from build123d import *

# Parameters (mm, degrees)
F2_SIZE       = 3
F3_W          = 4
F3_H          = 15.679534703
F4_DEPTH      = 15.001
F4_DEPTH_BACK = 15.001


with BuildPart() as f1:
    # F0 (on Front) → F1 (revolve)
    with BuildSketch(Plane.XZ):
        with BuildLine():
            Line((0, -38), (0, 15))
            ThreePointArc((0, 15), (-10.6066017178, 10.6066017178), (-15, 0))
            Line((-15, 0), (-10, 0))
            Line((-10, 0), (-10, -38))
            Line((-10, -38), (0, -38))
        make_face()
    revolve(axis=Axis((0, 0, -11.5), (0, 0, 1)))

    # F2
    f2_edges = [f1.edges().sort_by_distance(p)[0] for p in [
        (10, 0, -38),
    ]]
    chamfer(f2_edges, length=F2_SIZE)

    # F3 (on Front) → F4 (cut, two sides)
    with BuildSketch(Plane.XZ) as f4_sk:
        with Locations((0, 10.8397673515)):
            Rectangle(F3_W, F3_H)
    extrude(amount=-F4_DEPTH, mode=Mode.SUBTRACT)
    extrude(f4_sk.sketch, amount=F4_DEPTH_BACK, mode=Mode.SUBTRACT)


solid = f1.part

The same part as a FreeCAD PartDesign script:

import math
import FreeCAD as App
import Part
import Sketcher
from FreeCAD import Vector


def edges_at(feature, points):
    """Names of the edges that pass closest to the given points."""
    edges = feature.Shape.Edges
    near = lambda p: min(range(len(edges)), key=lambda i: edges[i].distToShape(Part.Vertex(*p))[0])
    return sorted({f"Edge{near(p) + 1}" for p in points})

doc = App.newDocument("Part")
body = doc.addObject("PartDesign::Body", "Body")

sketch1 = body.newObject("Sketcher::SketchObject", "Sketch")
sketch1.AttachmentSupport = (doc.getObject("XZ_Plane"), [""])
sketch1.MapMode = "FlatFace"
sketch1.addGeometry([
    Part.LineSegment(Vector(0, -38, 0), Vector(0, 15, 0)),
    Part.ArcOfCircle(Part.Circle(Vector(0, 0, 0), Vector(0, 0, 1), 15), math.radians(90), math.radians(180)),
    Part.LineSegment(Vector(-15, 0, 0), Vector(-10, 0, 0)),
    Part.LineSegment(Vector(-10, 0, 0), Vector(-10, -38, 0)),
    Part.LineSegment(Vector(-10, -38, 0), Vector(0, -38, 0)),
], False)
sketch1.addConstraint([
    Sketcher.Constraint("Coincident", 0, 2, 1, 1),
    Sketcher.Constraint("Coincident", 1, 2, 2, 1),
    Sketcher.Constraint("Coincident", 2, 2, 3, 1),
    Sketcher.Constraint("Coincident", 3, 2, 4, 1),
    Sketcher.Constraint("Coincident", 4, 2, 0, 1),
    Sketcher.Constraint("Vertical", 0),
    Sketcher.Constraint("Horizontal", 2),
    Sketcher.Constraint("Vertical", 3),
    Sketcher.Constraint("Horizontal", 4),
    Sketcher.Constraint("Coincident", 1, 3, -1, 1),
    Sketcher.Constraint("PointOnObject", 0, 2, -2),
    Sketcher.Constraint("PointOnObject", 1, 2, -1),
    Sketcher.Constraint("Radius", 1, 15.0),
    Sketcher.Constraint("DistanceX", 2, 1, 2, 2, 5.0),
    Sketcher.Constraint("DistanceY", 0, 1, 0, 2, 53.0),
])
revolution = body.newObject("PartDesign::Revolution", "Revolution")
revolution.Profile = sketch1
revolution.ReferenceAxis = (sketch1, ["V_Axis"])
revolution.Angle = 360
doc.recompute()

chamfer = body.newObject("PartDesign::Chamfer", "Chamfer")
chamfer.Base = (revolution, edges_at(revolution, [(10, 0, -38)]))
chamfer.Size = 3

sketch2 = body.newObject("Sketcher::SketchObject", "Sketch001")
sketch2.AttachmentSupport = (doc.getObject("XZ_Plane"), [""])
sketch2.MapMode = "FlatFace"
sketch2.addGeometry([
    Part.LineSegment(Vector(-2, 18.7, 0), Vector(-2, 3, 0)),
    Part.LineSegment(Vector(-2, 3, 0), Vector(2, 3, 0)),
    Part.LineSegment(Vector(2, 3, 0), Vector(2, 18.7, 0)),
    Part.LineSegment(Vector(2, 18.7, 0), Vector(-2, 18.7, 0)),
], False)
sketch2.addConstraint([
    Sketcher.Constraint("Coincident", 0, 2, 1, 1),
    Sketcher.Constraint("Coincident", 1, 2, 2, 1),
    Sketcher.Constraint("Coincident", 2, 2, 3, 1),
    Sketcher.Constraint("Coincident", 3, 2, 0, 1),
    Sketcher.Constraint("Vertical", 0),
    Sketcher.Constraint("Horizontal", 1),
    Sketcher.Constraint("Vertical", 2),
    Sketcher.Constraint("Horizontal", 3),
    Sketcher.Constraint("DistanceX", 1, 1, 1, 2, 4.0),
    Sketcher.Constraint("DistanceX", 0, 2, -1, 1, 2.0),
    Sketcher.Constraint("DistanceY", -1, 1, 0, 2, 3.0),
    Sketcher.Constraint("DistanceY", 0, 2, 0, 1, 15.679535),
])
pocket1 = body.newObject("PartDesign::Pocket", "Pocket")
pocket1.Profile = sketch2
pocket1.Type = "ThroughAll"
pocket1.Midplane = True

doc.recompute()
